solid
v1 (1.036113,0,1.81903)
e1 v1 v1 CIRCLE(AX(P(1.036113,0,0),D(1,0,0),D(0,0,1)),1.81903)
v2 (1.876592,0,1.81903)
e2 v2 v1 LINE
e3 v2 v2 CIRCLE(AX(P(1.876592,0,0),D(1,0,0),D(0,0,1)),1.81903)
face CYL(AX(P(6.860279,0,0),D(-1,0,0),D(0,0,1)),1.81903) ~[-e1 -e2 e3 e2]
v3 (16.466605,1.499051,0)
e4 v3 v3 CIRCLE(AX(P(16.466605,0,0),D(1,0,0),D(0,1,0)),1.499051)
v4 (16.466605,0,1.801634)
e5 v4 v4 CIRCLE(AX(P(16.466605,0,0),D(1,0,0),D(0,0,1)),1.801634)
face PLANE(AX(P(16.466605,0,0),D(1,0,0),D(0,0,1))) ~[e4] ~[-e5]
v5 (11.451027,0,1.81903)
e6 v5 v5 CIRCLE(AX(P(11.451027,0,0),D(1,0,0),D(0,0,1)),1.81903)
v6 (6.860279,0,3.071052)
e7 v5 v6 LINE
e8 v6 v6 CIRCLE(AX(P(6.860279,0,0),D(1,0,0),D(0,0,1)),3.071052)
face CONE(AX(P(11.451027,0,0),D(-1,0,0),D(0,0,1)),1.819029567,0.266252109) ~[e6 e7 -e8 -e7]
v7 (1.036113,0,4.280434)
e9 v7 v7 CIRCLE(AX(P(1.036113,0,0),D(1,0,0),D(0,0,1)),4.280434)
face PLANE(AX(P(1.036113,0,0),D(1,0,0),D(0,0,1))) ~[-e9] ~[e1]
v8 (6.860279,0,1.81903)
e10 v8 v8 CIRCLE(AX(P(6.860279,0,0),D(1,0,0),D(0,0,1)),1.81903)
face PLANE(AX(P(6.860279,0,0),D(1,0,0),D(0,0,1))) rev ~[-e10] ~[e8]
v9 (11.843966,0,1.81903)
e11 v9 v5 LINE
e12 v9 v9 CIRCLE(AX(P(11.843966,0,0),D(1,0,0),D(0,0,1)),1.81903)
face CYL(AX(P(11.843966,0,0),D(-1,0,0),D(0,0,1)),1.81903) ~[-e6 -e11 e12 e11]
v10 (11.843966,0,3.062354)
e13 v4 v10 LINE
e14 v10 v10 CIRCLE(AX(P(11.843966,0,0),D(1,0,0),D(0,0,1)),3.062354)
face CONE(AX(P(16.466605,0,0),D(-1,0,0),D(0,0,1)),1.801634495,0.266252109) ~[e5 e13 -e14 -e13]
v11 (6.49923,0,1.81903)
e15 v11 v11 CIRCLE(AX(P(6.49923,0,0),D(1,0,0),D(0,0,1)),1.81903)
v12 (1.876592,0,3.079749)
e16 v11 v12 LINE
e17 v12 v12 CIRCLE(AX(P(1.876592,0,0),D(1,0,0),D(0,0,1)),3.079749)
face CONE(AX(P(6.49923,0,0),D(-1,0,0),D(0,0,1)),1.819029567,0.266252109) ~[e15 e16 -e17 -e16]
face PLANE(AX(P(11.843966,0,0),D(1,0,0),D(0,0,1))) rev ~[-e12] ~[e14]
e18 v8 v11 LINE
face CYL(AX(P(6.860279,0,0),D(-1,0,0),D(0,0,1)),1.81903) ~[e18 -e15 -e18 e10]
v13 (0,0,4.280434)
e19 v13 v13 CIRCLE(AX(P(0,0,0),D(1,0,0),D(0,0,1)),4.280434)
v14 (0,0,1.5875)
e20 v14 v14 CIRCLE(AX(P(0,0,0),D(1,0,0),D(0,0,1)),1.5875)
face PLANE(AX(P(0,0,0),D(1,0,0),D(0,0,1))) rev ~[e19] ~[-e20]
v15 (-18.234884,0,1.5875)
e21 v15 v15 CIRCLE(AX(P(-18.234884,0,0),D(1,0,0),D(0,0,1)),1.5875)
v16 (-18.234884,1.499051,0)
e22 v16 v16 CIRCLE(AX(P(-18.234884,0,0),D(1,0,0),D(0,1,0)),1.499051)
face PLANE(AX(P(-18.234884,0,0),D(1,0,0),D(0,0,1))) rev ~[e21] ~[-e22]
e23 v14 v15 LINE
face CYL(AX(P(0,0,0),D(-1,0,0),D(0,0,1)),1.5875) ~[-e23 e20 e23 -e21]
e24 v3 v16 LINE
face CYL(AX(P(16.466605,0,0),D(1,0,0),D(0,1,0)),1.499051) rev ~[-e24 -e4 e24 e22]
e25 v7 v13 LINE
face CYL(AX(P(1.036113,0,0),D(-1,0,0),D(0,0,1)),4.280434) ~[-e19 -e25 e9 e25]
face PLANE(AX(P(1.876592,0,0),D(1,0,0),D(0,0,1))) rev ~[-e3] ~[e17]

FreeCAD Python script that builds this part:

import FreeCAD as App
import Part
import Sketcher
from FreeCAD import Vector
Q = App.Units.Quantity

doc = App.newDocument("Part")
body = doc.addObject("PartDesign::Body", "Body")

sketch1 = body.newObject("Sketcher::SketchObject", "Sketch")
sketch1.AttachmentSupport = (doc.getObject("XZ_Plane"), [""])
sketch1.MapMode = "FlatFace"
sketch1.addGeometry(Part.LineSegment(Vector(11.451027, 1.81903, 0), Vector(6.860279, 3.071052, 0)), False)
sketch1.addGeometry(Part.LineSegment(Vector(6.860279, 3.071052, 0), Vector(6.860279, 1.81903, 0)), False)
sketch1.addGeometry(Part.LineSegment(Vector(6.860279, 1.81903, 0), Vector(6.49923, 1.81903, 0)), False)
sketch1.addGeometry(Part.LineSegment(Vector(6.49923, 1.81903, 0), Vector(1.876592, 3.079749, 0)), False)
sketch1.addGeometry(Part.LineSegment(Vector(1.876592, 3.079749, 0), Vector(1.876592, 1.81903, 0)), False)
sketch1.addGeometry(Part.LineSegment(Vector(1.876592, 1.81903, 0), Vector(1.036113, 1.81903, 0)), False)
sketch1.addGeometry(Part.LineSegment(Vector(1.036113, 1.81903, 0), Vector(1.036113, 4.280434, 0)), False)
sketch1.addGeometry(Part.LineSegment(Vector(1.036113, 4.280434, 0), Vector(0, 4.280434, 0)), False)
sketch1.addGeometry(Part.LineSegment(Vector(0, 4.280434, 0), Vector(0, 1.5875, 0)), False)
sketch1.addGeometry(Part.LineSegment(Vector(0, 1.5875, 0), Vector(-18.234884, 1.5875, 0)), False)
sketch1.addGeometry(Part.LineSegment(Vector(-18.234884, 1.5875, 0), Vector(-18.234884, 0, 0)), False)
sketch1.addGeometry(Part.LineSegment(Vector(-18.234884, 0, 0), Vector(16.466605, 0, 0)), False)
sketch1.addGeometry(Part.LineSegment(Vector(16.466605, 0, 0), Vector(16.466605, 1.801634, 0)), False)
sketch1.addGeometry(Part.LineSegment(Vector(16.466605, 1.801634, 0), Vector(11.843966, 3.062354, 0)), False)
sketch1.addGeometry(Part.LineSegment(Vector(11.843966, 3.062354, 0), Vector(11.843966, 1.81903, 0)), False)
sketch1.addGeometry(Part.LineSegment(Vector(11.843966, 1.81903, 0), Vector(11.451027, 1.81903, 0)), False)
sketch1.addConstraint(Sketcher.Constraint("Coincident", 0, 2, 1, 1))
sketch1.addConstraint(Sketcher.Constraint("Coincident", 1, 2, 2, 1))
sketch1.addConstraint(Sketcher.Constraint("Coincident", 2, 2, 3, 1))
sketch1.addConstraint(Sketcher.Constraint("Coincident", 3, 2, 4, 1))
sketch1.addConstraint(Sketcher.Constraint("Coincident", 4, 2, 5, 1))
sketch1.addConstraint(Sketcher.Constraint("Coincident", 5, 2, 6, 1))
sketch1.addConstraint(Sketcher.Constraint("Coincident", 6, 2, 7, 1))
sketch1.addConstraint(Sketcher.Constraint("Coincident", 7, 2, 8, 1))
sketch1.addConstraint(Sketcher.Constraint("Coincident", 8, 2, 9, 1))
sketch1.addConstraint(Sketcher.Constraint("Coincident", 9, 2, 10, 1))
sketch1.addConstraint(Sketcher.Constraint("Coincident", 10, 2, 11, 1))
sketch1.addConstraint(Sketcher.Constraint("Coincident", 11, 2, 12, 1))
sketch1.addConstraint(Sketcher.Constraint("Coincident", 12, 2, 13, 1))
sketch1.addConstraint(Sketcher.Constraint("Coincident", 13, 2, 14, 1))
sketch1.addConstraint(Sketcher.Constraint("Coincident", 14, 2, 15, 1))
sketch1.addConstraint(Sketcher.Constraint("Coincident", 15, 2, 0, 1))
sketch1.addConstraint(Sketcher.Constraint("Vertical", 1))
sketch1.addConstraint(Sketcher.Constraint("Horizontal", 2))
sketch1.addConstraint(Sketcher.Constraint("Vertical", 4))
sketch1.addConstraint(Sketcher.Constraint("Horizontal", 5))
sketch1.addConstraint(Sketcher.Constraint("Vertical", 6))
sketch1.addConstraint(Sketcher.Constraint("Horizontal", 7))
sketch1.addConstraint(Sketcher.Constraint("Vertical", 8))
sketch1.addConstraint(Sketcher.Constraint("Horizontal", 9))
sketch1.addConstraint(Sketcher.Constraint("Vertical", 10))
sketch1.addConstraint(Sketcher.Constraint("Horizontal", 11))
sketch1.addConstraint(Sketcher.Constraint("Vertical", 12))
sketch1.addConstraint(Sketcher.Constraint("Vertical", 14))
sketch1.addConstraint(Sketcher.Constraint("Horizontal", 15))
sketch1.addConstraint(Sketcher.Constraint("PointOnObject", 7, 2, -2))
sketch1.addConstraint(Sketcher.Constraint("PointOnObject", 10, 2, -1))
sketch1.addConstraint(Sketcher.Constraint("Parallel", 0, 3))
sketch1.addConstraint(Sketcher.Constraint("Parallel", 3, 13))
sketch1.addConstraint(Sketcher.Constraint("Horizontal", 2, 2, 4, 2))
sketch1.addConstraint(Sketcher.Constraint("Horizontal", 5, 2, 14, 2))
sketch1.addConstraint(Sketcher.Constraint("Equal", 3, 13))
sketch1.addConstraint(Sketcher.Constraint("DistanceY", 10, 2, 10, 1, Q("0.0625 in")))
sketch1.addConstraint(Sketcher.Constraint("DistanceX", 2, 2, 2, 1, Q("0.361049 mm")))
sketch1.addConstraint(Sketcher.Constraint("DistanceX", 5, 2, 5, 1, Q("0.840479 mm")))
sketch1.addConstraint(Sketcher.Constraint("DistanceX", 11, 1, 11, 2, Q("34.701489 mm")))
sketch1.addConstraint(Sketcher.Constraint("DistanceX", 15, 2, 15, 1, Q("0.39294 mm")))
sketch1.addConstraint(Sketcher.Constraint("DistanceY", 4, 2, 4, 1, Q("1.26072 mm")))
sketch1.addConstraint(Sketcher.Constraint("Distance", 3, Q("4.791472 mm")))
sketch1.addConstraint(Sketcher.Constraint("DistanceX", 7, 2, 7, 1, Q("1.036113 mm")))
sketch1.addConstraint(Sketcher.Constraint("DistanceX", 9, 2, 9, 1, Q("18.234884 mm")))
sketch1.addConstraint(Sketcher.Constraint("DistanceY", 6, 1, 6, 2, Q("2.461405 mm")))
sketch1.addConstraint(Sketcher.Constraint("DistanceY", 8, 2, 8, 1, Q("2.692934 mm")))
sketch1.addConstraint(Sketcher.Constraint("DistanceY", 12, 1, 12, 2, Q("1.801634 mm")))
revolution = body.newObject("PartDesign::Revolution", "Revolution")
revolution.Profile = sketch1
revolution.ReferenceAxis = (sketch1, ["H_Axis"])
revolution.Angle = 360

sketch2 = body.newObject("Sketcher::SketchObject", "Sketch001")
sketch2.AttachmentSupport = (doc.getObject("YZ_Plane"), [""])
sketch2.MapMode = "FlatFace"
sketch2.AttachmentOffset = App.Placement(Vector(0, 0, 16.466605), App.Rotation())
sketch2.addGeometry(Part.Circle(Vector(0, 0, 0), Vector(0, 0, 1), 1.499051), False)
sketch2.addConstraint(Sketcher.Constraint("Coincident", 0, 3, -1, 1))
sketch2.addConstraint(Sketcher.Constraint("Diameter", 0, Q("2.998101 mm")))
pocket1 = body.newObject("PartDesign::Pocket", "Pocket")
pocket1.Profile = sketch2
pocket1.Length = Q("1.898 in")

doc.recompute()
